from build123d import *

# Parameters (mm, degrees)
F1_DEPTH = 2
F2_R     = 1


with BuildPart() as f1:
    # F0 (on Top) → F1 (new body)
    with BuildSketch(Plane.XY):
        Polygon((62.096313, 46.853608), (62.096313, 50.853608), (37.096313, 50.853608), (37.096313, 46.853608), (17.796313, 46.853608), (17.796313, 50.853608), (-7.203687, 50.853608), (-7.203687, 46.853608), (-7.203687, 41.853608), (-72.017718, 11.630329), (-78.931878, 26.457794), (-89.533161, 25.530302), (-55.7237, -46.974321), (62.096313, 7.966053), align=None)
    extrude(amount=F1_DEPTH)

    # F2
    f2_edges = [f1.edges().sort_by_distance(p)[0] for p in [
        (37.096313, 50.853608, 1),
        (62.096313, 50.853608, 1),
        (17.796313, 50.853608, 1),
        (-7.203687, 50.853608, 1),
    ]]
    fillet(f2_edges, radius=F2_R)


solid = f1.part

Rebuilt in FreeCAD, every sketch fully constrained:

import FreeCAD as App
import Part
import Sketcher
from FreeCAD import Vector
Q = App.Units.Quantity


def edges_at(feature, points):
    """Names of the edges that pass closest to the given points."""
    edges = feature.Shape.Edges
    near = lambda p: min(range(len(edges)), key=lambda i: edges[i].distToShape(Part.Vertex(*p))[0])
    return sorted({f"Edge{near(p) + 1}" for p in points})


def add_polygon(sketch, points):
    """Adds a closed chain of lines whose ends are joined by coincident constraints."""
    first, n = sketch.GeometryCount, len(points)
    for a, b in zip(points, points[1:] + points[:1]):
        sketch.addGeometry(Part.LineSegment(App.Vector(*a, 0), App.Vector(*b, 0)), False)
    for i in range(n):
        sketch.addConstraint(Sketcher.Constraint("Coincident", first + i, 2, first + (i + 1) % n, 1))

doc = App.newDocument("Part")
body = doc.addObject("PartDesign::Body", "Body")

sketch1 = body.newObject("Sketcher::SketchObject", "Sketch")
sketch1.AttachmentSupport = (doc.getObject("XY_Plane"), [""])
sketch1.MapMode = "FlatFace"
add_polygon(sketch1, [(62.096313, 50.853608), (37.096313, 50.853608), (37.096313, 46.853608), (17.796313, 46.853608), (17.796313, 50.853608), (-7.203687, 50.853608), (-7.203687, 41.853608), (-72.017718, 11.630329), (-78.931878, 26.457794), (-89.533161, 25.530302), (-55.7237, -46.974321), (62.096313, 7.966053)])
sketch1.addConstraint(Sketcher.Constraint("Horizontal", 0))
sketch1.addConstraint(Sketcher.Constraint("Vertical", 1))
sketch1.addConstraint(Sketcher.Constraint("Horizontal", 2))
sketch1.addConstraint(Sketcher.Constraint("Vertical", 3))
sketch1.addConstraint(Sketcher.Constraint("Horizontal", 4))
sketch1.addConstraint(Sketcher.Constraint("Vertical", 5))
sketch1.addConstraint(Sketcher.Constraint("Vertical", 11))
sketch1.addConstraint(Sketcher.Constraint("Perpendicular", 6, 7))
sketch1.addConstraint(Sketcher.Constraint("Parallel", 7, 9))
sketch1.addConstraint(Sketcher.Constraint("Perpendicular", 9, 10))
sketch1.addConstraint(Sketcher.Constraint("Horizontal", 0, 2, 3, 2))
sketch1.addConstraint(Sketcher.Constraint("Equal", 0, 4))
sketch1.addConstraint(Sketcher.Constraint("DistanceX", 0, 2, 0, 1, 25.0))
sketch1.addConstraint(Sketcher.Constraint("DistanceY", 1, 2, 1, 1, 4.0))
sketch1.addConstraint(Sketcher.Constraint("DistanceY", 5, 2, 5, 1, 9.0))
sketch1.addConstraint(Sketcher.Constraint("Angle", 6, Q("-155 deg")))
sketch1.addConstraint(Sketcher.Constraint("Angle", 8, Q("-175 deg")))
sketch1.addConstraint(Sketcher.Constraint("Distance", 9, 80.0))
sketch1.addConstraint(Sketcher.Constraint("Distance", 10, 130.000001))
sketch1.addConstraint(Sketcher.Constraint("DistanceX", 2, 2, 2, 1, 19.3))
sketch1.addConstraint(Sketcher.Constraint("DistanceY", -1, 1, 8, 2, 25.530302))
sketch1.addConstraint(Sketcher.Constraint("DistanceX", 9, 2, -1, 1, 55.7237))
sketch1.addConstraint(Sketcher.Constraint("Distance", 6, 71.514371))
sketch1.addConstraint(Sketcher.Constraint("Distance", 8, 10.641778))
pad1 = body.newObject("PartDesign::Pad", "Pad")
pad1.Profile = sketch1
pad1.Length = 2
doc.recompute()

fillet = body.newObject("PartDesign::Fillet", "Fillet")
fillet.Base = (pad1, edges_at(pad1, [
    (37.096, 50.854, 1),
    (62.096, 50.854, 1),
    (17.796, 50.854, 1),
    (-7.204, 50.854, 1),
]))
fillet.Radius = 1

doc.recompute()
